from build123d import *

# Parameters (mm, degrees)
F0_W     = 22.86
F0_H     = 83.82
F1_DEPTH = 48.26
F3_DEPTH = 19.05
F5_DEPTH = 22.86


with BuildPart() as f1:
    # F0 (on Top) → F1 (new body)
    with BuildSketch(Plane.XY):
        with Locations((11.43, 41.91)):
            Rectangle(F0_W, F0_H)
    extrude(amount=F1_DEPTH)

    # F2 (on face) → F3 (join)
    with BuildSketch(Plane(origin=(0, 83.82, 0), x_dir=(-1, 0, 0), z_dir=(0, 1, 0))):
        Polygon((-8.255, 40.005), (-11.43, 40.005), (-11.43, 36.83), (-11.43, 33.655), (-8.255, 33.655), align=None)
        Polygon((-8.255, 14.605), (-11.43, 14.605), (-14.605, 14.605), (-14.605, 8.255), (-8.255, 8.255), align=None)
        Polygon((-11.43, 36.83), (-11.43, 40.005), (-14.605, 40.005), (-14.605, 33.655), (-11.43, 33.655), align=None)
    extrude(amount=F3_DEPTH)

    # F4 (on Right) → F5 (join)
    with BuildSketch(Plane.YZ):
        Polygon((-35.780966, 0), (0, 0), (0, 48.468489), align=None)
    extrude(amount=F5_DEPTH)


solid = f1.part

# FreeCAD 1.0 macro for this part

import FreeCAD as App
import Part
import Sketcher

V = App.Vector
Q = App.Units.Quantity

doc = App.newDocument("Part")
params = doc.addObject("Spreadsheet::Sheet", "Params")
for row, (alias, value) in enumerate([
    ("sketch1_width", "0.9 in"),
    ("sketch1_height", "3.3 in"),
    ("pad1_length", "1.9 in"),
    ("sketch2_width", "0.25 in"),
    ("pad2_length", "0.75 in"),
    ("pad3_length", "0.9 in"),
], start=1):
    params.set(f"A{row}", alias)
    params.set(f"B{row}", "=" + value)
    params.setAlias(f"B{row}", alias)

body = doc.addObject("PartDesign::Body", "Body")

# Sketch on XY plane
sketch1 = doc.addObject("Sketcher::SketchObject", "Sketch")
body.addObject(sketch1)
sketch1.AttachmentSupport = (doc.XY_Plane, [""])
sketch1.MapMode = "FlatFace"
sketch1.addGeometry(Part.LineSegment(V(0, 84, 0), V(0, 0, 0)), False)
sketch1.addGeometry(Part.LineSegment(V(0, 0, 0), V(23, 0, 0)), False)
sketch1.addGeometry(Part.LineSegment(V(23, 0, 0), V(23, 84, 0)), False)
sketch1.addGeometry(Part.LineSegment(V(23, 84, 0), V(0, 84, 0)), False)
sketch1.addConstraint(Sketcher.Constraint("Coincident", 0, 2, 1, 1))
sketch1.addConstraint(Sketcher.Constraint("Coincident", 1, 2, 2, 1))
sketch1.addConstraint(Sketcher.Constraint("Coincident", 2, 2, 3, 1))
sketch1.addConstraint(Sketcher.Constraint("Coincident", 3, 2, 0, 1))
sketch1.addConstraint(Sketcher.Constraint("Vertical", 0))
sketch1.addConstraint(Sketcher.Constraint("Horizontal", 1))
sketch1.addConstraint(Sketcher.Constraint("Vertical", 2))
sketch1.addConstraint(Sketcher.Constraint("Horizontal", 3))
sketch1.addConstraint(Sketcher.Constraint("Coincident", 0, 2, -1, 1))
sketch1.addConstraint(Sketcher.Constraint("DistanceX", 1, 1, 1, 2, Q("0.9 in")))
sketch1.addConstraint(Sketcher.Constraint("DistanceY", 0, 2, 0, 1, Q("3.3 in")))
sketch1.setExpression("Constraints[9]", "Params.sketch1_width")
sketch1.setExpression("Constraints[10]", "Params.sketch1_height")
pad1 = doc.addObject("PartDesign::Pad", "Pad")
body.addObject(pad1)
pad1.Profile = sketch1
pad1.setExpression("Length", "Params.pad1_length")

# Sketch on XZ plane
sketch2 = doc.addObject("Sketcher::SketchObject", "Sketch001")
body.addObject(sketch2)
sketch2.AttachmentSupport = (doc.XZ_Plane, [""])
sketch2.MapMode = "FlatFace"
sketch2.AttachmentOffset = App.Placement(V(0, 0, -3.3 * 25.4), App.Rotation())
sketch2.addGeometry(Part.LineSegment(V(8, 40, 0), V(15, 40, 0)), False)
sketch2.addGeometry(Part.LineSegment(V(15, 40, 0), V(15, 34, 0)), False)
sketch2.addGeometry(Part.LineSegment(V(15, 34, 0), V(8, 34, 0)), False)
sketch2.addGeometry(Part.LineSegment(V(8, 34, 0), V(8, 40, 0)), False)
sketch2.addGeometry(Part.LineSegment(V(8, 15, 0), V(15, 15, 0)), False)
sketch2.addGeometry(Part.LineSegment(V(15, 15, 0), V(15, 8, 0)), False)
sketch2.addGeometry(Part.LineSegment(V(15, 8, 0), V(8, 8, 0)), False)
sketch2.addGeometry(Part.LineSegment(V(8, 8, 0), V(8, 15, 0)), False)
sketch2.addConstraint(Sketcher.Constraint("Coincident", 0, 2, 1, 1))
sketch2.addConstraint(Sketcher.Constraint("Coincident", 1, 2, 2, 1))
sketch2.addConstraint(Sketcher.Constraint("Coincident", 2, 2, 3, 1))
sketch2.addConstraint(Sketcher.Constraint("Coincident", 3, 2, 0, 1))
sketch2.addConstraint(Sketcher.Constraint("Coincident", 4, 2, 5, 1))
sketch2.addConstraint(Sketcher.Constraint("Coincident", 5, 2, 6, 1))
sketch2.addConstraint(Sketcher.Constraint("Coincident", 6, 2, 7, 1))
sketch2.addConstraint(Sketcher.Constraint("Coincident", 7, 2, 4, 1))
sketch2.addConstraint(Sketcher.Constraint("Horizontal", 0))
sketch2.addConstraint(Sketcher.Constraint("Vertical", 1))
sketch2.addConstraint(Sketcher.Constraint("Horizontal", 2))
sketch2.addConstraint(Sketcher.Constraint("Vertical", 3))
sketch2.addConstraint(Sketcher.Constraint("Horizontal", 4))
sketch2.addConstraint(Sketcher.Constraint("Vertical", 5))
sketch2.addConstraint(Sketcher.Constraint("Horizontal", 6))
sketch2.addConstraint(Sketcher.Constraint("Vertical", 7))
sketch2.addConstraint(Sketcher.Constraint("Vertical", 1, 2, 4, 2))
sketch2.addConstraint(Sketcher.Constraint("Vertical", 3, 2, 6, 2))
sketch2.addConstraint(Sketcher.Constraint("Equal", 6, 1))
sketch2.addConstraint(Sketcher.Constraint("Equal", 3, 5))
sketch2.addConstraint(Sketcher.Constraint("DistanceY", 4, 2, 0, 2, Q("1 in")))
sketch2.addConstraint(Sketcher.Constraint("DistanceX", 0, 1, 0, 2, Q("0.25 in")))
sketch2.addConstraint(Sketcher.Constraint("DistanceX", -1, 1, 0, 2, Q("0.575 in")))
sketch2.addConstraint(Sketcher.Constraint("DistanceY", -1, 1, 0, 2, Q("1.575 in")))
sketch2.setExpression("Constraints[21]", "Params.sketch2_width")
pad2 = doc.addObject("PartDesign::Pad", "Pad001")
body.addObject(pad2)
pad2.Profile = sketch2
pad2.setExpression("Length", "Params.pad2_length")
pad2.Reversed = True

# Sketch on YZ plane
sketch3 = doc.addObject("Sketcher::SketchObject", "Sketch002")
body.addObject(sketch3)
sketch3.AttachmentSupport = (doc.YZ_Plane, [""])
sketch3.MapMode = "FlatFace"
sketch3.addGeometry(Part.LineSegment(V(-36, 0, 0), V(0, 0, 0)), False)
sketch3.addGeometry(Part.LineSegment(V(0, 0, 0), V(0, 48, 0)), False)
sketch3.addGeometry(Part.LineSegment(V(0, 48, 0), V(-36, 0, 0)), False)
sketch3.addConstraint(Sketcher.Constraint("Coincident", 0, 2, 1, 1))
sketch3.addConstraint(Sketcher.Constraint("Coincident", 1, 2, 2, 1))
sketch3.addConstraint(Sketcher.Constraint("Coincident", 2, 2, 0, 1))
sketch3.addConstraint(Sketcher.Constraint("Horizontal", 0))
sketch3.addConstraint(Sketcher.Constraint("Vertical", 1))
sketch3.addConstraint(Sketcher.Constraint("Coincident", 0, 2, -1, 1))
sketch3.addConstraint(Sketcher.Constraint("Distance", 2, Q("60.245099 mm")))
sketch3.addConstraint(Sketcher.Constraint("DistanceY", 1, 1, 1, 2, Q("48.468489 mm")))
pad3 = doc.addObject("PartDesign::Pad", "Pad002")
body.addObject(pad3)
pad3.Profile = sketch3
pad3.setExpression("Length", "Params.pad3_length")

doc.recompute()
